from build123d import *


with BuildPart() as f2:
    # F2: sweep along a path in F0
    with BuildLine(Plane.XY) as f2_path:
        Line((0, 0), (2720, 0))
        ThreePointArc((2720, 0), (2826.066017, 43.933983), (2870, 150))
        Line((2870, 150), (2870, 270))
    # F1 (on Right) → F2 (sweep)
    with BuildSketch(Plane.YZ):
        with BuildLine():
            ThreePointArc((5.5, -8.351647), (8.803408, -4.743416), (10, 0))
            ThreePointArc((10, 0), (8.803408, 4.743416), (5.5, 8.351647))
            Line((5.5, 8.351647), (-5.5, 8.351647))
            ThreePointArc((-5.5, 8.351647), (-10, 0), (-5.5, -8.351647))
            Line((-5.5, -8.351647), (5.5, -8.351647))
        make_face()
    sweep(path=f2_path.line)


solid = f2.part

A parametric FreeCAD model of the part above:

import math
import FreeCAD as App
import Part
import Sketcher

doc = App.newDocument("Part")
body = doc.addObject("PartDesign::Body", "Body")

sketch1 = doc.addObject("Sketcher::SketchObject", "Sketch")
body.addObject(sketch1)
sketch1.AttachmentSupport = (doc.YZ_Plane, [""])
sketch1.MapMode = "FlatFace"
sketch1.addGeometry(Part.ArcOfCircle(Part.Circle(App.Vector(0, 0, 0), App.Vector(0, 0, 1), 10), math.radians(-57), math.radians(0)), False)
sketch1.addGeometry(Part.ArcOfCircle(Part.Circle(App.Vector(0, 0, 0), App.Vector(0, 0, 1), 10), math.radians(0), math.radians(57)), False)
sketch1.addGeometry(Part.LineSegment(App.Vector(6, 8, 0), App.Vector(-6, 8, 0)), False)
sketch1.addGeometry(Part.ArcOfCircle(Part.Circle(App.Vector(0, 0, 0), App.Vector(0, 0, 1), 10), math.radians(123), math.radians(237)), False)
sketch1.addGeometry(Part.LineSegment(App.Vector(-6, -8, 0), App.Vector(6, -8, 0)), False)
sketch1.addConstraint(Sketcher.Constraint("Tangent", 0, 2, 1, 1))
sketch1.addConstraint(Sketcher.Constraint("Coincident", 1, 2, 2, 1))
sketch1.addConstraint(Sketcher.Constraint("Coincident", 2, 2, 3, 1))
sketch1.addConstraint(Sketcher.Constraint("Coincident", 3, 2, 4, 1))
sketch1.addConstraint(Sketcher.Constraint("Coincident", 4, 2, 0, 1))
sketch1.addConstraint(Sketcher.Constraint("Horizontal", 2))
sketch1.addConstraint(Sketcher.Constraint("Horizontal", 4))
sketch1.addConstraint(Sketcher.Constraint("Coincident", 0, 3, -1, 1))
sketch1.addConstraint(Sketcher.Constraint("Coincident", 3, 3, -1, 1))
sketch1.addConstraint(Sketcher.Constraint("Equal", 0, 1))
sketch1.addConstraint(Sketcher.Constraint("Symmetric", 1, 2, 3, 2, -1, 1))
sketch1.addConstraint(Sketcher.Constraint("PointOnObject", 0, 2, -1))
sketch1.addConstraint(Sketcher.Constraint("Radius", 3, 10.000001))
sketch1.addConstraint(Sketcher.Constraint("DistanceX", 2, 2, 2, 1, 11.0))

sketch2 = doc.addObject("Sketcher::SketchObject", "Sketch001")
body.addObject(sketch2)
sketch2.AttachmentSupport = (doc.XY_Plane, [""])
sketch2.MapMode = "FlatFace"
sketch2.addGeometry(Part.LineSegment(App.Vector(0, 0, 0), App.Vector(2720, 0, 0)), False)
sketch2.addGeometry(Part.ArcOfCircle(Part.Circle(App.Vector(2720, 150, 0), App.Vector(0, 0, 1), 150), math.radians(-90), math.radians(0)), False)
sketch2.addGeometry(Part.LineSegment(App.Vector(2870, 150, 0), App.Vector(2870, 270, 0)), False)
sketch2.addConstraint(Sketcher.Constraint("Tangent", 0, 2, 1, 1))
sketch2.addConstraint(Sketcher.Constraint("Tangent", 1, 2, 2, 1))
sketch2.addConstraint(Sketcher.Constraint("Horizontal", 0))
sketch2.addConstraint(Sketcher.Constraint("Vertical", 2))
sketch2.addConstraint(Sketcher.Constraint("Coincident", 0, 1, -1, 1))
sketch2.addConstraint(Sketcher.Constraint("Radius", 1, 150.000001))
sketch2.addConstraint(Sketcher.Constraint("DistanceX", 0, 1, 0, 2, 2720.0))
sketch2.addConstraint(Sketcher.Constraint("DistanceY", 2, 1, 2, 2, 120.0))
doc.recompute()

additivepipe = doc.addObject("PartDesign::AdditivePipe", "AdditivePipe")
body.addObject(additivepipe)
additivepipe.Profile = sketch1
additivepipe.Spine = (sketch2, ["Edge1", "Edge2", "Edge3"])

doc.recompute()
